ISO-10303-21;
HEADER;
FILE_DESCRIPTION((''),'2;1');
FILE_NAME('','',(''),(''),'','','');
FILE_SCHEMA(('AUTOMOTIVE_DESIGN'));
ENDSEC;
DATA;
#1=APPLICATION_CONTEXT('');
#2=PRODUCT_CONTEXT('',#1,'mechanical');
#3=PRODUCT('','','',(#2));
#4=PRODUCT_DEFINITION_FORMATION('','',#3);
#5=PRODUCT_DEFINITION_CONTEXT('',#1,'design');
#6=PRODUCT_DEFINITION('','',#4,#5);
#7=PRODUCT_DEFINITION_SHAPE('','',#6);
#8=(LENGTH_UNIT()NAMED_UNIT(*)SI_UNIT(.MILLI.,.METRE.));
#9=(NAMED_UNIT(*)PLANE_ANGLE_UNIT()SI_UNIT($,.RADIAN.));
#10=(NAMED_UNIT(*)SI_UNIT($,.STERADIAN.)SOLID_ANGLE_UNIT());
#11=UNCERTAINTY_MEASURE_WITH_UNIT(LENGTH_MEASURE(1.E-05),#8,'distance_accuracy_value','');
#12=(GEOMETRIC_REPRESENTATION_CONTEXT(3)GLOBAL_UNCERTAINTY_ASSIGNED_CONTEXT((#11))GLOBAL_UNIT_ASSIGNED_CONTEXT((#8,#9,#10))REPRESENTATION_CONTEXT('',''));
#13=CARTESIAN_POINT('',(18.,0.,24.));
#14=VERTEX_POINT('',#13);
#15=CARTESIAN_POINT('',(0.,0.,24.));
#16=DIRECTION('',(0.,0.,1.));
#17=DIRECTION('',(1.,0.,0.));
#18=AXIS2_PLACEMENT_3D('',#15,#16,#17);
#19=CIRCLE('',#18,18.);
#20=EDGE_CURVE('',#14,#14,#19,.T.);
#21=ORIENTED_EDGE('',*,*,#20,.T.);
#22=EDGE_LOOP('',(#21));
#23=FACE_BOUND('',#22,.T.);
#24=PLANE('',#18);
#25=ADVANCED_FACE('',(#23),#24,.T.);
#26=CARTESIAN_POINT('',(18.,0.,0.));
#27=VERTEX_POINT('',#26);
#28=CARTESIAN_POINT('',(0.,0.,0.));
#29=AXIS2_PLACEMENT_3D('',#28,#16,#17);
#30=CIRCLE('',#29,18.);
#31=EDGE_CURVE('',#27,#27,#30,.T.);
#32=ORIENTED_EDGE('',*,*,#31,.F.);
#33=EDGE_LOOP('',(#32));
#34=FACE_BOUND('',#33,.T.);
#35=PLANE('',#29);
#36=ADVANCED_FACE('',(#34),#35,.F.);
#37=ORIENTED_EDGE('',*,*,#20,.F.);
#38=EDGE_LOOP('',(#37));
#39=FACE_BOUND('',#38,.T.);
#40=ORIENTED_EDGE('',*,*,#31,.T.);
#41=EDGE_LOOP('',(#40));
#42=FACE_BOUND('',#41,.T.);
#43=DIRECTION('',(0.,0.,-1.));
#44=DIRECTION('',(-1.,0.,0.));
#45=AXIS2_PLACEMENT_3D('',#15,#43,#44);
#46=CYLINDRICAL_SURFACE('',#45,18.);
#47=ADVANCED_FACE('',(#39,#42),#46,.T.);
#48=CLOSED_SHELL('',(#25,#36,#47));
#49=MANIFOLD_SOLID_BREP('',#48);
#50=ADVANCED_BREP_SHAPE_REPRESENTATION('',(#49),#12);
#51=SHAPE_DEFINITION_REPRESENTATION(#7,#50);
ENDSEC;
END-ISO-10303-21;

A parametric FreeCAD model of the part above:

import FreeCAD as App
import Part
import Sketcher

V = App.Vector

doc = App.newDocument("Part")
body = doc.addObject("PartDesign::Body", "Body")

# Sketch on XY plane
sketch1 = body.newObject("Sketcher::SketchObject", "Sketch")
sketch1.AttachmentSupport = (doc.getObject("XY_Plane"), [""])
sketch1.MapMode = "FlatFace"
sketch1.addGeometry(Part.Circle(V(0, 0, 0), V(0, 0, 1), 18), False)
sketch1.addConstraint(Sketcher.Constraint("Coincident", 0, 3, -1, 1))
sketch1.addConstraint(Sketcher.Constraint("Diameter", 0, 36.0))
pad1 = body.newObject("PartDesign::Pad", "Pad")
pad1.Profile = sketch1
pad1.Length = 24

doc.recompute()
